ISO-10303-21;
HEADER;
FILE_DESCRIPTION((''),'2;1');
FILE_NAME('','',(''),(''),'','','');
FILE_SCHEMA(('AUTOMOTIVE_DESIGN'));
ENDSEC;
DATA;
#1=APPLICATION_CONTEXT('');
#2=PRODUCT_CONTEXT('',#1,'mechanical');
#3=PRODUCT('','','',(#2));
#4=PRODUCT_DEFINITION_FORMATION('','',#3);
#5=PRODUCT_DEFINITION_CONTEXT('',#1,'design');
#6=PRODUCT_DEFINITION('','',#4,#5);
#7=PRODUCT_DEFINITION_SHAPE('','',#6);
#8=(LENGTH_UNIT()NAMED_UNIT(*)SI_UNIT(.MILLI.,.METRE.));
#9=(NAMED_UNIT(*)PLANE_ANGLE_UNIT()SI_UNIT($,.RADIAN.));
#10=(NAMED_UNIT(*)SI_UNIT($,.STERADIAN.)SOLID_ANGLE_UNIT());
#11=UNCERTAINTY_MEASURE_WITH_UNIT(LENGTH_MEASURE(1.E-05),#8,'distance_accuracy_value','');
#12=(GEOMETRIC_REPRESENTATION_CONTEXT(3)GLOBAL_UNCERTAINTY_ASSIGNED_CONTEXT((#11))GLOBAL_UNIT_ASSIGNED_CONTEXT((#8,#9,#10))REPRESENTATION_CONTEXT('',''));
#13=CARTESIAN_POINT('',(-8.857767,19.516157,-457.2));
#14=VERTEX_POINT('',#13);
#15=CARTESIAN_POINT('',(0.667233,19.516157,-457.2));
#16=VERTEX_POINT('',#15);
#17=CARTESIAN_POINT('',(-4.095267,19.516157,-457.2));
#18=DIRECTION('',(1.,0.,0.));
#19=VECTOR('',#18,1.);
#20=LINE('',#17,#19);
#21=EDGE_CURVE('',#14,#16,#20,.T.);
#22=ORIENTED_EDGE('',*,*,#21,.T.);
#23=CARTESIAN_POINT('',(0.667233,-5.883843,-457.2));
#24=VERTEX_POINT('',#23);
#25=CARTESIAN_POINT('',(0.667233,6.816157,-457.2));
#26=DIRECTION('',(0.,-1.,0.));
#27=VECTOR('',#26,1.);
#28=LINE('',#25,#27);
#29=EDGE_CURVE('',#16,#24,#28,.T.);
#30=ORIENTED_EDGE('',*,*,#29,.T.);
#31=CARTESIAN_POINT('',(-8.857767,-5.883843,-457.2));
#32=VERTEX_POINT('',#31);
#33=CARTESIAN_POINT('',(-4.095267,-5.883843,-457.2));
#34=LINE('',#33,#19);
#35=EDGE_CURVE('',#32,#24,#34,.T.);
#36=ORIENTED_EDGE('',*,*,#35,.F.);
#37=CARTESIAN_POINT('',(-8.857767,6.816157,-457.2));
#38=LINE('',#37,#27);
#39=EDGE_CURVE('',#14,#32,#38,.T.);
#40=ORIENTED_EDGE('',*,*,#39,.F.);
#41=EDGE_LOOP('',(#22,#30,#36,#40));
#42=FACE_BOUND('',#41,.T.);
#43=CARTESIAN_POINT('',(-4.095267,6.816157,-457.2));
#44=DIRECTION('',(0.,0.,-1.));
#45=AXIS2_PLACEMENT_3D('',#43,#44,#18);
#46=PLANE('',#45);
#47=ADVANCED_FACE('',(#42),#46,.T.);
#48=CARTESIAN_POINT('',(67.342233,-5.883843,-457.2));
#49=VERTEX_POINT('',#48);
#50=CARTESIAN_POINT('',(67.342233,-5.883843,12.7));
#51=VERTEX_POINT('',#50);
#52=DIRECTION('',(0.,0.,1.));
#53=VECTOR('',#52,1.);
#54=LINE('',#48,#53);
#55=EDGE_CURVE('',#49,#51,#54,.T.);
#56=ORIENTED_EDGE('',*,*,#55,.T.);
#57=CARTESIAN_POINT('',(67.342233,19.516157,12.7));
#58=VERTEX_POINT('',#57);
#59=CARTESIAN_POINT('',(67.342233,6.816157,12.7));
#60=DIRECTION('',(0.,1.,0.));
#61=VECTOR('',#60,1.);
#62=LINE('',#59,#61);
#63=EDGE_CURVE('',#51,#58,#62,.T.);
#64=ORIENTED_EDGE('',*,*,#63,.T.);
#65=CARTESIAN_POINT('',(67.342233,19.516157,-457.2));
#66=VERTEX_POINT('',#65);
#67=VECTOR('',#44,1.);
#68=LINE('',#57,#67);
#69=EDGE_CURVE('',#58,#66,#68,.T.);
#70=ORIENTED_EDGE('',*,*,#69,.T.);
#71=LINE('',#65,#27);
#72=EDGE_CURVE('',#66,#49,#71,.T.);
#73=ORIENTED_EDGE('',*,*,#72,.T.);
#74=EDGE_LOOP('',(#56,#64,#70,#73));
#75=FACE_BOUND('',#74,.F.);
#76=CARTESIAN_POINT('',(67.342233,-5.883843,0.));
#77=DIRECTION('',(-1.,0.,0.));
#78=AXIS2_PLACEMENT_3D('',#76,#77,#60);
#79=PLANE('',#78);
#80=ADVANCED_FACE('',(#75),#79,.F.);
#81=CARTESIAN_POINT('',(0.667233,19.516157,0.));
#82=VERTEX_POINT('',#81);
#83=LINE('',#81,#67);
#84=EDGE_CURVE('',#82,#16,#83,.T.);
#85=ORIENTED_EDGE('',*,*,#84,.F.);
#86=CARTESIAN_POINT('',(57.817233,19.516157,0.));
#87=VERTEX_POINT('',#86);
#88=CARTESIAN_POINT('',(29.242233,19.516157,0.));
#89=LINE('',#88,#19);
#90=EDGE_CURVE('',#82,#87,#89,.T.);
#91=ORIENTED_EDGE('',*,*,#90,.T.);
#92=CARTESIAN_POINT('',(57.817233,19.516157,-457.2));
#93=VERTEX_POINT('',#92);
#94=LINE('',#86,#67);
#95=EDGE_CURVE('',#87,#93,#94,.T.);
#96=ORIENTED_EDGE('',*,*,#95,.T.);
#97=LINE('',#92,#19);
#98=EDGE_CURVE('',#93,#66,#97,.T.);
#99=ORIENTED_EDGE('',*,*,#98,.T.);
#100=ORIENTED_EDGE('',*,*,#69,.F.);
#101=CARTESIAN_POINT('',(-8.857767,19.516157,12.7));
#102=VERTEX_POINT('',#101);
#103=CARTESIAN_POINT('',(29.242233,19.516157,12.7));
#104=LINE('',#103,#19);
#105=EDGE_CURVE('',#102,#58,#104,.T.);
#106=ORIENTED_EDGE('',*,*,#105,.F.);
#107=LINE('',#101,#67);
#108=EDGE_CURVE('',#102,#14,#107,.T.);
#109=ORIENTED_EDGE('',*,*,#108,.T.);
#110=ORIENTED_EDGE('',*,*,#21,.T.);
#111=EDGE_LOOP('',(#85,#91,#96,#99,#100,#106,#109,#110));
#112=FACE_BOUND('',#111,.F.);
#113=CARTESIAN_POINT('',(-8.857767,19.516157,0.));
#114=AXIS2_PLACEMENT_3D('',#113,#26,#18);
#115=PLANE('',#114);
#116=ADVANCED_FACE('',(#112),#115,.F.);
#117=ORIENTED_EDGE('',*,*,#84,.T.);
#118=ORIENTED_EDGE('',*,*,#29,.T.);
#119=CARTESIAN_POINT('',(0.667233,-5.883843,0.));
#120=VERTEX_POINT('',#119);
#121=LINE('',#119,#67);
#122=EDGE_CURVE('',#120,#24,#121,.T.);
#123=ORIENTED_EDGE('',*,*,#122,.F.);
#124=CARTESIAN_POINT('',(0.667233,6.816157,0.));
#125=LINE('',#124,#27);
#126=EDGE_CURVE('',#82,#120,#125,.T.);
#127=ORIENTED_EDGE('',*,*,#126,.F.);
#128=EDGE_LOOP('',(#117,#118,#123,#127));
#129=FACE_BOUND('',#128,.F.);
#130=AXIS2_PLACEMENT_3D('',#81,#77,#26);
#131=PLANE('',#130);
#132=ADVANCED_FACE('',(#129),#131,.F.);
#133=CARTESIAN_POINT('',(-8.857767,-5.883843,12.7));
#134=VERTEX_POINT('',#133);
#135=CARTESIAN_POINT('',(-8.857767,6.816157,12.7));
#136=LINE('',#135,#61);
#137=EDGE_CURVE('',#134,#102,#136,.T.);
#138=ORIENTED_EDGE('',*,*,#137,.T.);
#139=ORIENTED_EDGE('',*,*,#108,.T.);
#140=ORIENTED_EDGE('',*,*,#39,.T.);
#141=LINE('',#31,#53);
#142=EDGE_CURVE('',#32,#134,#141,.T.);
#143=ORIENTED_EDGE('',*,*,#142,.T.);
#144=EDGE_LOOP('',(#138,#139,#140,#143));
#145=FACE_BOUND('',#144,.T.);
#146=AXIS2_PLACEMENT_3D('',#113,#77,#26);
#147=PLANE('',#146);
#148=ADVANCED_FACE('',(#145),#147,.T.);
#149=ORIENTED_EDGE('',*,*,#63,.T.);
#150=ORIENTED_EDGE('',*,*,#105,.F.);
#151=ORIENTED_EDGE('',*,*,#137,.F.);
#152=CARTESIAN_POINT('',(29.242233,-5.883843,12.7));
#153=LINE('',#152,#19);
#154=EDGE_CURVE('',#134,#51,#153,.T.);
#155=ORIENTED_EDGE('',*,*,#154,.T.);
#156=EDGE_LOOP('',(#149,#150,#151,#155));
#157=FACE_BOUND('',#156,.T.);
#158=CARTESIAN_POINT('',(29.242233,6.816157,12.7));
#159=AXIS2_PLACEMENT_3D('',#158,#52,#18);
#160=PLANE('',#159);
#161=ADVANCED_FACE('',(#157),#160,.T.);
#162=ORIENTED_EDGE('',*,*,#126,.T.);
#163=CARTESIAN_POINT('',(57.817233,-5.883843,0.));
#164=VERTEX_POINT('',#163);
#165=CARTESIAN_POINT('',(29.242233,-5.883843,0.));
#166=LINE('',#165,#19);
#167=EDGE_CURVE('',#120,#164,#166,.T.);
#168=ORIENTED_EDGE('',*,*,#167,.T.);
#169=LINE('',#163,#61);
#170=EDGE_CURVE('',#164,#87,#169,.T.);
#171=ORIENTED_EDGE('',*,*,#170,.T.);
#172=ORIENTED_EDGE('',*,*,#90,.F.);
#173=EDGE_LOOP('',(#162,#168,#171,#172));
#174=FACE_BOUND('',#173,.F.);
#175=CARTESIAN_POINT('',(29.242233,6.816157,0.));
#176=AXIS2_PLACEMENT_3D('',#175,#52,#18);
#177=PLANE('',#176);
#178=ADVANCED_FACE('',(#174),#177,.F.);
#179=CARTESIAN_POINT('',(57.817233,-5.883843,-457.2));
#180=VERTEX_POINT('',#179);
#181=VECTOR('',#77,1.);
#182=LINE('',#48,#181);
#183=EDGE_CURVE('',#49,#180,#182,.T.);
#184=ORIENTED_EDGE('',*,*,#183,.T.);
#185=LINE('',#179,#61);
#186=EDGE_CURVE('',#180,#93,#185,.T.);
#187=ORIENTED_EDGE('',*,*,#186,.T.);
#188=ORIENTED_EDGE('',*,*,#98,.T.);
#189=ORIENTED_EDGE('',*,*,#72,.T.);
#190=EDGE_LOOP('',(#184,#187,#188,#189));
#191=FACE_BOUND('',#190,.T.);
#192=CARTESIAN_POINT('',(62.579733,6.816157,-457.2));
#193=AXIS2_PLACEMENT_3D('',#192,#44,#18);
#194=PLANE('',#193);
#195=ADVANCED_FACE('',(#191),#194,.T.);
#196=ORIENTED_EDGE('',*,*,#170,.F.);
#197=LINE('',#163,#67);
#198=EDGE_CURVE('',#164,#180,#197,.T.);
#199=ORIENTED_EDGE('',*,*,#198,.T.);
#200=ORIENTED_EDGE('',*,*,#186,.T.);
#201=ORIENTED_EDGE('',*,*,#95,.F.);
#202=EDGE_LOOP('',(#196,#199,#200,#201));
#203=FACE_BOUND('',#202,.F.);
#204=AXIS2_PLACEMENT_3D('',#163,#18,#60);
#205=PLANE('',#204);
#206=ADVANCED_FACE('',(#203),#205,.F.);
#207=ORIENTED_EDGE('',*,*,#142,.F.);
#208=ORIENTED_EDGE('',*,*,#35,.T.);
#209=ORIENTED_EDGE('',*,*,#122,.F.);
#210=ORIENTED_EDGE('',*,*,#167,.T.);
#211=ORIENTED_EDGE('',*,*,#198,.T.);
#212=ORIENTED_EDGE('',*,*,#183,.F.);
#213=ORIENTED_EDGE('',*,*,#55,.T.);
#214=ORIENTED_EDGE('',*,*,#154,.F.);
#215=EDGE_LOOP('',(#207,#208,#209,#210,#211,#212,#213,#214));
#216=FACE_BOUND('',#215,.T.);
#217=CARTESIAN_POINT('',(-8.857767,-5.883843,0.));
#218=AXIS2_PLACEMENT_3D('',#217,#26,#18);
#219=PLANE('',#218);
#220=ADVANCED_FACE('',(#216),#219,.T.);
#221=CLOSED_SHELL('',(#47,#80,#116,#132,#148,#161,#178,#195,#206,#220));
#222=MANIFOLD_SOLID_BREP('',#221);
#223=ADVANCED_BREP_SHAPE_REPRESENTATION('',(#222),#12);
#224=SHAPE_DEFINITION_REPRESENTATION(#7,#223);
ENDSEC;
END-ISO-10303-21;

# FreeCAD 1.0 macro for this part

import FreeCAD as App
import Part
import Sketcher

V = App.Vector
Q = App.Units.Quantity

doc = App.newDocument("Part")
params = doc.addObject("Spreadsheet::Sheet", "Params")
for row, (alias, value) in enumerate([
    ("sketch1_width", "3 in"),
    ("sketch1_height", "1 in"),
    ("pad1_length", "0.5 in"),
    ("sketch2_height", "1 in"),
    ("sketch2_width", "0.375 in"),
    ("pad2_length", "18 in"),
], start=1):
    params.set(f"A{row}", alias)
    params.set(f"B{row}", "=" + value)
    params.setAlias(f"B{row}", alias)

body = doc.addObject("PartDesign::Body", "Body")

sketch1 = body.newObject("Sketcher::SketchObject", "Sketch")
sketch1.AttachmentSupport = (doc.getObject("XY_Plane"), [""])
sketch1.MapMode = "FlatFace"
sketch1.addGeometry([
    Part.LineSegment(V(-9, 20, 0), V(-9, -6, 0)),
    Part.LineSegment(V(-9, -6, 0), V(67, -6, 0)),
    Part.LineSegment(V(67, -6, 0), V(67, 20, 0)),
    Part.LineSegment(V(67, 20, 0), V(-9, 20, 0)),
], False)
sketch1.addConstraint([
    Sketcher.Constraint("Coincident", 0, 2, 1, 1),
    Sketcher.Constraint("Coincident", 1, 2, 2, 1),
    Sketcher.Constraint("Coincident", 2, 2, 3, 1),
    Sketcher.Constraint("Coincident", 3, 2, 0, 1),
    Sketcher.Constraint("Vertical", 0),
    Sketcher.Constraint("Horizontal", 1),
    Sketcher.Constraint("Vertical", 2),
    Sketcher.Constraint("Horizontal", 3),
    Sketcher.Constraint("DistanceX", 1, 1, 1, 2, Q("3 in")),
    Sketcher.Constraint("DistanceY", 0, 2, 0, 1, Q("1 in")),
    Sketcher.Constraint("DistanceX", 0, 2, -1, 1, 8.857767),
    Sketcher.Constraint("DistanceY", 0, 2, -1, 1, 5.883843),
])
sketch1.setExpression("Constraints[8]", "Params.sketch1_width")
sketch1.setExpression("Constraints[9]", "Params.sketch1_height")
pad1 = body.newObject("PartDesign::Pad", "Pad")
pad1.Profile = sketch1
pad1.setExpression("Length", "Params.pad1_length")

sketch2 = body.newObject("Sketcher::SketchObject", "Sketch001")
sketch2.AttachmentSupport = (doc.getObject("XY_Plane"), [""])
sketch2.MapMode = "FlatFace"
sketch2.addGeometry([
    Part.LineSegment(V(-9, -6, 0), V(-9, 20, 0)),
    Part.LineSegment(V(-9, 20, 0), V(1, 20, 0)),
    Part.LineSegment(V(1, 20, 0), V(1, -6, 0)),
    Part.LineSegment(V(1, -6, 0), V(-9, -6, 0)),
    Part.LineSegment(V(58, 20, 0), V(67, 20, 0)),
    Part.LineSegment(V(67, 20, 0), V(67, -6, 0)),
    Part.LineSegment(V(67, -6, 0), V(58, -6, 0)),
    Part.LineSegment(V(58, -6, 0), V(58, 20, 0)),
], False)
sketch2.addConstraint([
    Sketcher.Constraint("Coincident", 0, 2, 1, 1),
    Sketcher.Constraint("Coincident", 1, 2, 2, 1),
    Sketcher.Constraint("Coincident", 2, 2, 3, 1),
    Sketcher.Constraint("Coincident", 3, 2, 0, 1),
    Sketcher.Constraint("Coincident", 4, 2, 5, 1),
    Sketcher.Constraint("Coincident", 5, 2, 6, 1),
    Sketcher.Constraint("Coincident", 6, 2, 7, 1),
    Sketcher.Constraint("Coincident", 7, 2, 4, 1),
    Sketcher.Constraint("Vertical", 0),
    Sketcher.Constraint("Horizontal", 1),
    Sketcher.Constraint("Vertical", 2),
    Sketcher.Constraint("Horizontal", 3),
    Sketcher.Constraint("Horizontal", 4),
    Sketcher.Constraint("Vertical", 5),
    Sketcher.Constraint("Horizontal", 6),
    Sketcher.Constraint("Vertical", 7),
    Sketcher.Constraint("Horizontal", 1, 2, 4, 2),
    Sketcher.Constraint("Horizontal", 3, 2, 5, 2),
    Sketcher.Constraint("Equal", 3, 4),
    Sketcher.Constraint("DistanceY", 0, 1, 0, 2, Q("1 in")),
    Sketcher.Constraint("DistanceX", 0, 2, 4, 2, Q("3 in")),
    Sketcher.Constraint("DistanceX", 1, 1, 1, 2, Q("0.375 in")),
    Sketcher.Constraint("DistanceX", 0, 2, -1, 1, 8.857767),
    Sketcher.Constraint("DistanceY", -1, 1, 0, 2, 19.516157),
])
sketch2.setExpression("Constraints[19]", "Params.sketch2_height")
sketch2.setExpression("Constraints[21]", "Params.sketch2_width")
pad2 = body.newObject("PartDesign::Pad", "Pad001")
pad2.Profile = sketch2
pad2.setExpression("Length", "Params.pad2_length")
pad2.Reversed = True

doc.recompute()
